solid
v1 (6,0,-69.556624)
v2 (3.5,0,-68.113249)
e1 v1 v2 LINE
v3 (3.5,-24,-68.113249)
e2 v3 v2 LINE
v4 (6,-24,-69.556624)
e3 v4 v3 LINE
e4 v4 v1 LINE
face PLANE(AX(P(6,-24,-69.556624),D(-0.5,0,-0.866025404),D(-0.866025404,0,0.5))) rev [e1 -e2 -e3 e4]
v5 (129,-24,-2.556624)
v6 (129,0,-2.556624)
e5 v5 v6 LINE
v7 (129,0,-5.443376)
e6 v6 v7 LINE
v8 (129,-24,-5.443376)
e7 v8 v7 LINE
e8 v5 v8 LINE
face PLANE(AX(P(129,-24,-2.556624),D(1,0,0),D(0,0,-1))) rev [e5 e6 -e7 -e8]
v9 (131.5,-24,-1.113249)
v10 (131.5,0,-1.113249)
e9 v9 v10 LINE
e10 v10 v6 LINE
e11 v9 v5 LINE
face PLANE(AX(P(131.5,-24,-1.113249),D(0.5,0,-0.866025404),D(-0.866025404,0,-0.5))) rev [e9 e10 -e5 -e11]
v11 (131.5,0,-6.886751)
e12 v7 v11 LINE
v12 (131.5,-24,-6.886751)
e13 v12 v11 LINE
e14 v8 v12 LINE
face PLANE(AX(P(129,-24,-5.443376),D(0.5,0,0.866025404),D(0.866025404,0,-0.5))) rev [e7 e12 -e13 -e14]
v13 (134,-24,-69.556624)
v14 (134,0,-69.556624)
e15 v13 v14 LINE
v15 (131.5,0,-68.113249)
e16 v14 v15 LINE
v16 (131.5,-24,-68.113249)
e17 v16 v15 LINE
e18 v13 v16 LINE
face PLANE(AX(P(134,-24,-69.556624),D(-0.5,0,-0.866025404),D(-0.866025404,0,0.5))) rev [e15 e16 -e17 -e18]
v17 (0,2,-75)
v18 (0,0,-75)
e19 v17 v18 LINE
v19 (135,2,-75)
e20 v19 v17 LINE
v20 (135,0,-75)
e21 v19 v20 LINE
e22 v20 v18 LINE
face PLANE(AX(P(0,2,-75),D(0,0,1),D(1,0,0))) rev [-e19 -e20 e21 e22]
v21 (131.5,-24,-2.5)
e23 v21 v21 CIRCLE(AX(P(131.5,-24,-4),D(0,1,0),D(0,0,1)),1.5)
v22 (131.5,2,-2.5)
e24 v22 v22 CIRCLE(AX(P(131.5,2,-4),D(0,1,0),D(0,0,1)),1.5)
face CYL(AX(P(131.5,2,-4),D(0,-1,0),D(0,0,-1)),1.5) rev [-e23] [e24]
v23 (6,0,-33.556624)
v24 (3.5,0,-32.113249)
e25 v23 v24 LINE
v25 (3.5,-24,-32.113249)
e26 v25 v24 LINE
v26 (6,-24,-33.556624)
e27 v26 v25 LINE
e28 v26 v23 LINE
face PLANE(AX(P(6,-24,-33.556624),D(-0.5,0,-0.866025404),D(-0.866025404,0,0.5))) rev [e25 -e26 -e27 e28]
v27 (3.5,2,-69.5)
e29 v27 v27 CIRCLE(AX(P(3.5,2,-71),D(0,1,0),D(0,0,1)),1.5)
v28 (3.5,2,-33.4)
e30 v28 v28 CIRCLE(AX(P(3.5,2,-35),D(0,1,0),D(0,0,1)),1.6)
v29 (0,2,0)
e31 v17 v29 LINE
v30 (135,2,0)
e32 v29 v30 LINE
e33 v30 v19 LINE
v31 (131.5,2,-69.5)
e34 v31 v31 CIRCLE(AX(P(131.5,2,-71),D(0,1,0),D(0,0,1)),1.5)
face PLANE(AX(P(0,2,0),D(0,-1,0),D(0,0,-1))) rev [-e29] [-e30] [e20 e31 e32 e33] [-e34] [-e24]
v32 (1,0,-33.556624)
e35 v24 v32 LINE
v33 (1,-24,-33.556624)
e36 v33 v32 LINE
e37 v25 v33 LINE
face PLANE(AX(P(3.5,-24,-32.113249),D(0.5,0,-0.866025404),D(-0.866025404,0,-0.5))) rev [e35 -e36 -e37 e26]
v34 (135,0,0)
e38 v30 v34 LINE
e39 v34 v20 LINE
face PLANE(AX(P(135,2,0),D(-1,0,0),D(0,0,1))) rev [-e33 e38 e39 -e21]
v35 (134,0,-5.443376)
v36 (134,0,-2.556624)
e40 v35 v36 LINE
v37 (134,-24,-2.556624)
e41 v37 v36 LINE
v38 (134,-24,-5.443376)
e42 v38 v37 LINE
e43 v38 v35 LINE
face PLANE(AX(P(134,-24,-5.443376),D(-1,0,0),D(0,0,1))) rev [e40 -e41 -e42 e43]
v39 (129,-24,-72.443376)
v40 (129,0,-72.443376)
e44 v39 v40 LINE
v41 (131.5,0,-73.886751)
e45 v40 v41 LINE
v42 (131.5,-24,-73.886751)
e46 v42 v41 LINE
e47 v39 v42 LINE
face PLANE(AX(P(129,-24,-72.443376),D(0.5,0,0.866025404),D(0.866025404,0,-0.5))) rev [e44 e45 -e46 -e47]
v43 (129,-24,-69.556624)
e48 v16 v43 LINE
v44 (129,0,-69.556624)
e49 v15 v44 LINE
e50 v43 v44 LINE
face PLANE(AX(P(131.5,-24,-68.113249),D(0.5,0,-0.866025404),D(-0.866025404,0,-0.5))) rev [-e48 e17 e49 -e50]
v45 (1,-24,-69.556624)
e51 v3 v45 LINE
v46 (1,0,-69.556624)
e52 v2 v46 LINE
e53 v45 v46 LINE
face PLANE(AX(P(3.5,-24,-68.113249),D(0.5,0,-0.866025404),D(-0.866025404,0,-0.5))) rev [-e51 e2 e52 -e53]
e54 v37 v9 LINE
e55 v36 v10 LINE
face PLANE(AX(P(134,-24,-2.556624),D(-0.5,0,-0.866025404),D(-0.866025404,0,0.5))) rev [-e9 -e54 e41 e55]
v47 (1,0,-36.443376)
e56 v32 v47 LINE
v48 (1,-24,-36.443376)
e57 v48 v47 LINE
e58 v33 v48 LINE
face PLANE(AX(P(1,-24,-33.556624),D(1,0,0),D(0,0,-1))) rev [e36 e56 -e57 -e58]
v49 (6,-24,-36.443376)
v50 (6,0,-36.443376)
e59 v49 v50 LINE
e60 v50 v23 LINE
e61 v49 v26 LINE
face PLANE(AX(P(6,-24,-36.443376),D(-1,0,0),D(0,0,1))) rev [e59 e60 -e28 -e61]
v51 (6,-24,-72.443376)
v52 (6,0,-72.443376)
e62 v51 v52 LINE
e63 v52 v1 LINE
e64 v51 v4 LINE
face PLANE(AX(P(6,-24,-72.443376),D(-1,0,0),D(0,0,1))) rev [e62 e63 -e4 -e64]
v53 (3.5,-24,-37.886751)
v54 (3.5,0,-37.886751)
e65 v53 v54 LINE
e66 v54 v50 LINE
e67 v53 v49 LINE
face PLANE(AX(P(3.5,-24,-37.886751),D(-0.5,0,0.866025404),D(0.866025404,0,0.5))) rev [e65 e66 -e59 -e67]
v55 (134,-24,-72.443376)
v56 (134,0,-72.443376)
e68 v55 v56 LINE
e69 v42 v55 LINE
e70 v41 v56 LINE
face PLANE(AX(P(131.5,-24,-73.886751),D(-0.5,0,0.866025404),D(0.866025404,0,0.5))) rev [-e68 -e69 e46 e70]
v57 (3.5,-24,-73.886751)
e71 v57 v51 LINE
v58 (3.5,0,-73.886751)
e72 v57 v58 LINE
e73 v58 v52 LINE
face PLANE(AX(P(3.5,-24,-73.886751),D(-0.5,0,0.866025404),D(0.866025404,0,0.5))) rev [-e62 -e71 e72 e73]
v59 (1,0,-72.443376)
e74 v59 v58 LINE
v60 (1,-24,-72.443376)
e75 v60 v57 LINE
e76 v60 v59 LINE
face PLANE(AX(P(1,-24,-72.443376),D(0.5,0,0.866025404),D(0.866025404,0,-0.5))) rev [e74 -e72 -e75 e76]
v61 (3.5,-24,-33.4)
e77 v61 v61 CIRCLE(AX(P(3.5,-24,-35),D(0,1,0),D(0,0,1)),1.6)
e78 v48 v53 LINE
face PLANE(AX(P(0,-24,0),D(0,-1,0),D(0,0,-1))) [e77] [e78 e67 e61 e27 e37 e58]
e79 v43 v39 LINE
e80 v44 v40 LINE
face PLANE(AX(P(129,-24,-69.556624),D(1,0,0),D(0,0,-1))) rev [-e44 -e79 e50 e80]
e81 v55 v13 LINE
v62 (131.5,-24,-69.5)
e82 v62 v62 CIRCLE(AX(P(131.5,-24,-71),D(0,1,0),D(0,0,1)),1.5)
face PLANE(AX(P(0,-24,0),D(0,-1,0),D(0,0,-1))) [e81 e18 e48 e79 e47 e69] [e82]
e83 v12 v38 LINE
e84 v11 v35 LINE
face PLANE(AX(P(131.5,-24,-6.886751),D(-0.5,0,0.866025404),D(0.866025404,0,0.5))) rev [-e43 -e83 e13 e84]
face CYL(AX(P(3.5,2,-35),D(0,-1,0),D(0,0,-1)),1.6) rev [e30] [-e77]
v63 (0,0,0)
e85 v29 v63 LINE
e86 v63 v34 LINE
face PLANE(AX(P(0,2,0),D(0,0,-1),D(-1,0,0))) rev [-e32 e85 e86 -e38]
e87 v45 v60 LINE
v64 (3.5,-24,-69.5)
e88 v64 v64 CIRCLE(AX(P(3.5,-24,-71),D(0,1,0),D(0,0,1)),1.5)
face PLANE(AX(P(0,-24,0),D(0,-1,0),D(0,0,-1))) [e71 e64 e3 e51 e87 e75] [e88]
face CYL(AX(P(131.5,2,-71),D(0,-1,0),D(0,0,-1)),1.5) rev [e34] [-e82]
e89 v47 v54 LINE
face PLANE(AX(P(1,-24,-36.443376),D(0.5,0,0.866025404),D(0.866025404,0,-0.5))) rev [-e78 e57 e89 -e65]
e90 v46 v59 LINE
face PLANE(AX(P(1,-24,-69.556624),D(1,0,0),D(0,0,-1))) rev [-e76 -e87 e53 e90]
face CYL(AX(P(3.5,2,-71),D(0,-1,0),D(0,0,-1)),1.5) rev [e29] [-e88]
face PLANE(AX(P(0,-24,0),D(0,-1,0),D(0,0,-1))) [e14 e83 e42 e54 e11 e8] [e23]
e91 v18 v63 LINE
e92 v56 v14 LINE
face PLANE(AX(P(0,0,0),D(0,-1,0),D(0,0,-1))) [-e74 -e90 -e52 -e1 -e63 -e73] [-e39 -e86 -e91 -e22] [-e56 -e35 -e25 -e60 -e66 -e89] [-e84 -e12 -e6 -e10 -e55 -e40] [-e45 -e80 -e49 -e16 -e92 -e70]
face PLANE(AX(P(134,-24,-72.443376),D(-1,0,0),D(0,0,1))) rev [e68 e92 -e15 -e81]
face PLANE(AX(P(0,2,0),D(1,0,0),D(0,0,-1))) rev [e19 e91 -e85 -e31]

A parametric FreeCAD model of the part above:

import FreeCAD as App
import Part
import Sketcher
from FreeCAD import Vector
Q = App.Units.Quantity


def add_polygon(sketch, points):
    """Adds a closed chain of lines whose ends are joined by coincident constraints."""
    first, n = sketch.GeometryCount, len(points)
    for a, b in zip(points, points[1:] + points[:1]):
        sketch.addGeometry(Part.LineSegment(App.Vector(*a, 0), App.Vector(*b, 0)), False)
    for i in range(n):
        sketch.addConstraint(Sketcher.Constraint("Coincident", first + i, 2, first + (i + 1) % n, 1))

doc = App.newDocument("Part")
body = doc.addObject("PartDesign::Body", "Body")

# Sketch on XZ plane
sketch1 = body.newObject("Sketcher::SketchObject", "Sketch")
sketch1.AttachmentSupport = (doc.getObject("XZ_Plane"), [""])
sketch1.MapMode = "FlatFace"
add_polygon(sketch1, [(0, -75), (0, 0), (135, 0), (135, -75)])  # lines 0-3
sketch1.addGeometry(Part.Circle(Vector(3.5, -35, 0), Vector(0, 0, 1), 1.6), False)  # 4
sketch1.addGeometry(Part.Circle(Vector(131.5, -4, 0), Vector(0, 0, 1), 1.5), False)  # 5
sketch1.addGeometry(Part.Circle(Vector(3.5, -71, 0), Vector(0, 0, 1), 1.5), False)  # 6
sketch1.addGeometry(Part.Circle(Vector(131.5, -71, 0), Vector(0, 0, 1), 1.5), False)  # 7
sketch1.addConstraint(Sketcher.Constraint("Vertical", 0))
sketch1.addConstraint(Sketcher.Constraint("Horizontal", 1))
sketch1.addConstraint(Sketcher.Constraint("Vertical", 2))
sketch1.addConstraint(Sketcher.Constraint("Horizontal", 3))
sketch1.addConstraint(Sketcher.Constraint("Coincident", 0, 2, -1, 1))
sketch1.addConstraint(Sketcher.Constraint("Equal", 5, 6))
sketch1.addConstraint(Sketcher.Constraint("Equal", 6, 7))
sketch1.addConstraint(Sketcher.Constraint("Horizontal", 6, 3, 7, 3))
sketch1.addConstraint(Sketcher.Constraint("Vertical", 4, 3, 6, 3))
sketch1.addConstraint(Sketcher.Constraint("Vertical", 5, 3, 7, 3))
sketch1.addConstraint(Sketcher.Constraint("Diameter", 5, Q("3 mm")))
sketch1.addConstraint(Sketcher.Constraint("Diameter", 4, Q("3.2 mm")))
sketch1.addConstraint(Sketcher.Constraint("DistanceX", 1, 1, 1, 2, Q("135 mm")))
sketch1.addConstraint(Sketcher.Constraint("DistanceY", 0, 1, 0, 2, Q("75 mm")))
sketch1.addConstraint(Sketcher.Constraint("DistanceY", 4, 3, -1, 1, Q("35 mm")))
sketch1.addConstraint(Sketcher.Constraint("DistanceY", 5, 3, -1, 1, Q("4 mm")))
sketch1.addConstraint(Sketcher.Constraint("DistanceY", 6, 3, -1, 1, Q("71 mm")))
sketch1.addConstraint(Sketcher.Constraint("DistanceX", 4, 3, 5, 3, Q("128 mm")))
sketch1.addConstraint(Sketcher.Constraint("DistanceX", -1, 1, 4, 3, Q("3.5 mm")))
pad1 = body.newObject("PartDesign::Pad", "Pad")
pad1.Profile = sketch1
pad1.Length = 2
pad1.Reversed = True

# Sketch on XZ plane
sketch2 = body.newObject("Sketcher::SketchObject", "Sketch001")
sketch2.AttachmentSupport = (doc.getObject("XZ_Plane"), [""])
sketch2.MapMode = "FlatFace"
add_polygon(sketch2, [(3.5, -37.886751), (6, -36.443376), (6, -33.556624), (3.5, -32.113249), (1, -33.556624), (1, -36.443376)])  # lines 0-5
add_polygon(sketch2, [(3.5, -73.886751), (6, -72.443376), (6, -69.556624), (3.5, -68.113249), (1, -69.556624), (1, -72.443376)])  # lines 6-11
add_polygon(sketch2, [(131.5, -6.886751), (134, -5.443376), (134, -2.556624), (131.5, -1.113249), (129, -2.556624), (129, -5.443376)])  # lines 12-17
add_polygon(sketch2, [(129, -72.443376), (131.5, -73.886751), (134, -72.443376), (134, -69.556624), (131.5, -68.113249), (129, -69.556624)])  # lines 18-23
sketch2.addConstraint(Sketcher.Constraint("Vertical", 1))
sketch2.addConstraint(Sketcher.Constraint("Vertical", 4))
sketch2.addConstraint(Sketcher.Constraint("Vertical", 7))
sketch2.addConstraint(Sketcher.Constraint("Vertical", 10))
sketch2.addConstraint(Sketcher.Constraint("Vertical", 13))
sketch2.addConstraint(Sketcher.Constraint("Vertical", 16))
sketch2.addConstraint(Sketcher.Constraint("Vertical", 20))
sketch2.addConstraint(Sketcher.Constraint("Vertical", 23))
sketch2.addConstraint(Sketcher.Constraint("Parallel", 0, 3))
sketch2.addConstraint(Sketcher.Constraint("Parallel", 2, 5))
sketch2.addConstraint(Sketcher.Constraint("Parallel", 3, 6))
sketch2.addConstraint(Sketcher.Constraint("Parallel", 5, 8))
sketch2.addConstraint(Sketcher.Constraint("Parallel", 6, 9))
sketch2.addConstraint(Sketcher.Constraint("Parallel", 8, 11))
sketch2.addConstraint(Sketcher.Constraint("Parallel", 9, 12))
sketch2.addConstraint(Sketcher.Constraint("Parallel", 11, 14))
sketch2.addConstraint(Sketcher.Constraint("Parallel", 12, 15))
sketch2.addConstraint(Sketcher.Constraint("Parallel", 14, 17))
sketch2.addConstraint(Sketcher.Constraint("Parallel", 17, 18))
sketch2.addConstraint(Sketcher.Constraint("Parallel", 15, 19))
sketch2.addConstraint(Sketcher.Constraint("Parallel", 18, 21))
sketch2.addConstraint(Sketcher.Constraint("Parallel", 19, 22))
sketch2.addConstraint(Sketcher.Constraint("Horizontal", 1, 2, 3, 2))
sketch2.addConstraint(Sketcher.Constraint("Horizontal", 0, 2, 4, 2))
sketch2.addConstraint(Sketcher.Constraint("Horizontal", 7, 2, 9, 2))
sketch2.addConstraint(Sketcher.Constraint("Horizontal", 6, 2, 10, 2))
sketch2.addConstraint(Sketcher.Constraint("Horizontal", 13, 2, 15, 2))
sketch2.addConstraint(Sketcher.Constraint("Horizontal", 12, 2, 16, 2))
sketch2.addConstraint(Sketcher.Constraint("Horizontal", 11, 2, 18, 2))
sketch2.addConstraint(Sketcher.Constraint("Horizontal", 10, 2, 19, 2))
sketch2.addConstraint(Sketcher.Constraint("Horizontal", 9, 2, 20, 2))
sketch2.addConstraint(Sketcher.Constraint("Horizontal", 8, 2, 21, 2))
sketch2.addConstraint(Sketcher.Constraint("Horizontal", 20, 2, 22, 2))
sketch2.addConstraint(Sketcher.Constraint("Vertical", 2, 2, 5, 2))
sketch2.addConstraint(Sketcher.Constraint("Vertical", 1, 2, 6, 2))
sketch2.addConstraint(Sketcher.Constraint("Vertical", 5, 2, 8, 2))
sketch2.addConstraint(Sketcher.Constraint("Vertical", 17, 2, 18, 2))
sketch2.addConstraint(Sketcher.Constraint("Vertical", 13, 2, 19, 2))
sketch2.addConstraint(Sketcher.Constraint("Equal", 4, 7))
sketch2.addConstraint(Sketcher.Constraint("Equal", 10, 13))
sketch2.addConstraint(Sketcher.Constraint("Angle", 0, Q("30 deg")))
sketch2.addConstraint(Sketcher.Constraint("DistanceX", -1, 1, 0, 2, Q("6 mm")))
sketch2.addConstraint(Sketcher.Constraint("DistanceX", -1, 1, 3, 2, Q("1 mm")))
sketch2.addConstraint(Sketcher.Constraint("DistanceX", -1, 1, 12, 2, Q("134 mm")))
sketch2.addConstraint(Sketcher.Constraint("DistanceY", 6, 2, 0, 2, Q("36 mm")))
sketch2.addConstraint(Sketcher.Constraint("DistanceY", 0, 2, 12, 2, Q("31 mm")))
sketch2.addConstraint(Sketcher.Constraint("DistanceY", 1, 1, 1, 2, Q("2.886751 mm")))
sketch2.addConstraint(Sketcher.Constraint("DistanceY", 2, 2, -1, 1, Q("32.113249 mm")))
pad2 = body.newObject("PartDesign::Pad", "Pad001")
pad2.Profile = sketch2
pad2.Length = 24

# Sketch on XZ plane
sketch3 = body.newObject("Sketcher::SketchObject", "Sketch002")
sketch3.AttachmentSupport = (doc.getObject("XZ_Plane"), [""])
sketch3.MapMode = "FlatFace"
sketch3.addGeometry(Part.Circle(Vector(3.5, -71, 0), Vector(0, 0, 1), 1.5), False)
sketch3.addGeometry(Part.Circle(Vector(131.5, -4, 0), Vector(0, 0, 1), 1.5), False)
sketch3.addGeometry(Part.Circle(Vector(131.5, -71, 0), Vector(0, 0, 1), 1.5), False)
sketch3.addGeometry(Part.Circle(Vector(3.5, -35, 0), Vector(0, 0, 1), 1.6), False)
sketch3.addConstraint(Sketcher.Constraint("Equal", 0, 1))
sketch3.addConstraint(Sketcher.Constraint("Equal", 1, 2))
sketch3.addConstraint(Sketcher.Constraint("Horizontal", 0, 3, 2, 3))
sketch3.addConstraint(Sketcher.Constraint("Vertical", 1, 3, 2, 3))
sketch3.addConstraint(Sketcher.Constraint("Vertical", 0, 3, 3, 3))
sketch3.addConstraint(Sketcher.Constraint("Diameter", 0, Q("3 mm")))
sketch3.addConstraint(Sketcher.Constraint("Diameter", 3, Q("3.2 mm")))
sketch3.addConstraint(Sketcher.Constraint("DistanceY", 0, 3, -1, 1, Q("71 mm")))
sketch3.addConstraint(Sketcher.Constraint("DistanceY", 1, 3, -1, 1, Q("4 mm")))
sketch3.addConstraint(Sketcher.Constraint("DistanceY", 3, 3, -1, 1, Q("35 mm")))
sketch3.addConstraint(Sketcher.Constraint("DistanceX", 0, 3, 1, 3, Q("128 mm")))
sketch3.addConstraint(Sketcher.Constraint("DistanceX", -1, 1, 0, 3, Q("3.5 mm")))
pocket1 = body.newObject("PartDesign::Pocket", "Pocket")
pocket1.Profile = sketch3
pocket1.Type = "ThroughAll"
pocket1.Reversed = True

doc.recompute()
